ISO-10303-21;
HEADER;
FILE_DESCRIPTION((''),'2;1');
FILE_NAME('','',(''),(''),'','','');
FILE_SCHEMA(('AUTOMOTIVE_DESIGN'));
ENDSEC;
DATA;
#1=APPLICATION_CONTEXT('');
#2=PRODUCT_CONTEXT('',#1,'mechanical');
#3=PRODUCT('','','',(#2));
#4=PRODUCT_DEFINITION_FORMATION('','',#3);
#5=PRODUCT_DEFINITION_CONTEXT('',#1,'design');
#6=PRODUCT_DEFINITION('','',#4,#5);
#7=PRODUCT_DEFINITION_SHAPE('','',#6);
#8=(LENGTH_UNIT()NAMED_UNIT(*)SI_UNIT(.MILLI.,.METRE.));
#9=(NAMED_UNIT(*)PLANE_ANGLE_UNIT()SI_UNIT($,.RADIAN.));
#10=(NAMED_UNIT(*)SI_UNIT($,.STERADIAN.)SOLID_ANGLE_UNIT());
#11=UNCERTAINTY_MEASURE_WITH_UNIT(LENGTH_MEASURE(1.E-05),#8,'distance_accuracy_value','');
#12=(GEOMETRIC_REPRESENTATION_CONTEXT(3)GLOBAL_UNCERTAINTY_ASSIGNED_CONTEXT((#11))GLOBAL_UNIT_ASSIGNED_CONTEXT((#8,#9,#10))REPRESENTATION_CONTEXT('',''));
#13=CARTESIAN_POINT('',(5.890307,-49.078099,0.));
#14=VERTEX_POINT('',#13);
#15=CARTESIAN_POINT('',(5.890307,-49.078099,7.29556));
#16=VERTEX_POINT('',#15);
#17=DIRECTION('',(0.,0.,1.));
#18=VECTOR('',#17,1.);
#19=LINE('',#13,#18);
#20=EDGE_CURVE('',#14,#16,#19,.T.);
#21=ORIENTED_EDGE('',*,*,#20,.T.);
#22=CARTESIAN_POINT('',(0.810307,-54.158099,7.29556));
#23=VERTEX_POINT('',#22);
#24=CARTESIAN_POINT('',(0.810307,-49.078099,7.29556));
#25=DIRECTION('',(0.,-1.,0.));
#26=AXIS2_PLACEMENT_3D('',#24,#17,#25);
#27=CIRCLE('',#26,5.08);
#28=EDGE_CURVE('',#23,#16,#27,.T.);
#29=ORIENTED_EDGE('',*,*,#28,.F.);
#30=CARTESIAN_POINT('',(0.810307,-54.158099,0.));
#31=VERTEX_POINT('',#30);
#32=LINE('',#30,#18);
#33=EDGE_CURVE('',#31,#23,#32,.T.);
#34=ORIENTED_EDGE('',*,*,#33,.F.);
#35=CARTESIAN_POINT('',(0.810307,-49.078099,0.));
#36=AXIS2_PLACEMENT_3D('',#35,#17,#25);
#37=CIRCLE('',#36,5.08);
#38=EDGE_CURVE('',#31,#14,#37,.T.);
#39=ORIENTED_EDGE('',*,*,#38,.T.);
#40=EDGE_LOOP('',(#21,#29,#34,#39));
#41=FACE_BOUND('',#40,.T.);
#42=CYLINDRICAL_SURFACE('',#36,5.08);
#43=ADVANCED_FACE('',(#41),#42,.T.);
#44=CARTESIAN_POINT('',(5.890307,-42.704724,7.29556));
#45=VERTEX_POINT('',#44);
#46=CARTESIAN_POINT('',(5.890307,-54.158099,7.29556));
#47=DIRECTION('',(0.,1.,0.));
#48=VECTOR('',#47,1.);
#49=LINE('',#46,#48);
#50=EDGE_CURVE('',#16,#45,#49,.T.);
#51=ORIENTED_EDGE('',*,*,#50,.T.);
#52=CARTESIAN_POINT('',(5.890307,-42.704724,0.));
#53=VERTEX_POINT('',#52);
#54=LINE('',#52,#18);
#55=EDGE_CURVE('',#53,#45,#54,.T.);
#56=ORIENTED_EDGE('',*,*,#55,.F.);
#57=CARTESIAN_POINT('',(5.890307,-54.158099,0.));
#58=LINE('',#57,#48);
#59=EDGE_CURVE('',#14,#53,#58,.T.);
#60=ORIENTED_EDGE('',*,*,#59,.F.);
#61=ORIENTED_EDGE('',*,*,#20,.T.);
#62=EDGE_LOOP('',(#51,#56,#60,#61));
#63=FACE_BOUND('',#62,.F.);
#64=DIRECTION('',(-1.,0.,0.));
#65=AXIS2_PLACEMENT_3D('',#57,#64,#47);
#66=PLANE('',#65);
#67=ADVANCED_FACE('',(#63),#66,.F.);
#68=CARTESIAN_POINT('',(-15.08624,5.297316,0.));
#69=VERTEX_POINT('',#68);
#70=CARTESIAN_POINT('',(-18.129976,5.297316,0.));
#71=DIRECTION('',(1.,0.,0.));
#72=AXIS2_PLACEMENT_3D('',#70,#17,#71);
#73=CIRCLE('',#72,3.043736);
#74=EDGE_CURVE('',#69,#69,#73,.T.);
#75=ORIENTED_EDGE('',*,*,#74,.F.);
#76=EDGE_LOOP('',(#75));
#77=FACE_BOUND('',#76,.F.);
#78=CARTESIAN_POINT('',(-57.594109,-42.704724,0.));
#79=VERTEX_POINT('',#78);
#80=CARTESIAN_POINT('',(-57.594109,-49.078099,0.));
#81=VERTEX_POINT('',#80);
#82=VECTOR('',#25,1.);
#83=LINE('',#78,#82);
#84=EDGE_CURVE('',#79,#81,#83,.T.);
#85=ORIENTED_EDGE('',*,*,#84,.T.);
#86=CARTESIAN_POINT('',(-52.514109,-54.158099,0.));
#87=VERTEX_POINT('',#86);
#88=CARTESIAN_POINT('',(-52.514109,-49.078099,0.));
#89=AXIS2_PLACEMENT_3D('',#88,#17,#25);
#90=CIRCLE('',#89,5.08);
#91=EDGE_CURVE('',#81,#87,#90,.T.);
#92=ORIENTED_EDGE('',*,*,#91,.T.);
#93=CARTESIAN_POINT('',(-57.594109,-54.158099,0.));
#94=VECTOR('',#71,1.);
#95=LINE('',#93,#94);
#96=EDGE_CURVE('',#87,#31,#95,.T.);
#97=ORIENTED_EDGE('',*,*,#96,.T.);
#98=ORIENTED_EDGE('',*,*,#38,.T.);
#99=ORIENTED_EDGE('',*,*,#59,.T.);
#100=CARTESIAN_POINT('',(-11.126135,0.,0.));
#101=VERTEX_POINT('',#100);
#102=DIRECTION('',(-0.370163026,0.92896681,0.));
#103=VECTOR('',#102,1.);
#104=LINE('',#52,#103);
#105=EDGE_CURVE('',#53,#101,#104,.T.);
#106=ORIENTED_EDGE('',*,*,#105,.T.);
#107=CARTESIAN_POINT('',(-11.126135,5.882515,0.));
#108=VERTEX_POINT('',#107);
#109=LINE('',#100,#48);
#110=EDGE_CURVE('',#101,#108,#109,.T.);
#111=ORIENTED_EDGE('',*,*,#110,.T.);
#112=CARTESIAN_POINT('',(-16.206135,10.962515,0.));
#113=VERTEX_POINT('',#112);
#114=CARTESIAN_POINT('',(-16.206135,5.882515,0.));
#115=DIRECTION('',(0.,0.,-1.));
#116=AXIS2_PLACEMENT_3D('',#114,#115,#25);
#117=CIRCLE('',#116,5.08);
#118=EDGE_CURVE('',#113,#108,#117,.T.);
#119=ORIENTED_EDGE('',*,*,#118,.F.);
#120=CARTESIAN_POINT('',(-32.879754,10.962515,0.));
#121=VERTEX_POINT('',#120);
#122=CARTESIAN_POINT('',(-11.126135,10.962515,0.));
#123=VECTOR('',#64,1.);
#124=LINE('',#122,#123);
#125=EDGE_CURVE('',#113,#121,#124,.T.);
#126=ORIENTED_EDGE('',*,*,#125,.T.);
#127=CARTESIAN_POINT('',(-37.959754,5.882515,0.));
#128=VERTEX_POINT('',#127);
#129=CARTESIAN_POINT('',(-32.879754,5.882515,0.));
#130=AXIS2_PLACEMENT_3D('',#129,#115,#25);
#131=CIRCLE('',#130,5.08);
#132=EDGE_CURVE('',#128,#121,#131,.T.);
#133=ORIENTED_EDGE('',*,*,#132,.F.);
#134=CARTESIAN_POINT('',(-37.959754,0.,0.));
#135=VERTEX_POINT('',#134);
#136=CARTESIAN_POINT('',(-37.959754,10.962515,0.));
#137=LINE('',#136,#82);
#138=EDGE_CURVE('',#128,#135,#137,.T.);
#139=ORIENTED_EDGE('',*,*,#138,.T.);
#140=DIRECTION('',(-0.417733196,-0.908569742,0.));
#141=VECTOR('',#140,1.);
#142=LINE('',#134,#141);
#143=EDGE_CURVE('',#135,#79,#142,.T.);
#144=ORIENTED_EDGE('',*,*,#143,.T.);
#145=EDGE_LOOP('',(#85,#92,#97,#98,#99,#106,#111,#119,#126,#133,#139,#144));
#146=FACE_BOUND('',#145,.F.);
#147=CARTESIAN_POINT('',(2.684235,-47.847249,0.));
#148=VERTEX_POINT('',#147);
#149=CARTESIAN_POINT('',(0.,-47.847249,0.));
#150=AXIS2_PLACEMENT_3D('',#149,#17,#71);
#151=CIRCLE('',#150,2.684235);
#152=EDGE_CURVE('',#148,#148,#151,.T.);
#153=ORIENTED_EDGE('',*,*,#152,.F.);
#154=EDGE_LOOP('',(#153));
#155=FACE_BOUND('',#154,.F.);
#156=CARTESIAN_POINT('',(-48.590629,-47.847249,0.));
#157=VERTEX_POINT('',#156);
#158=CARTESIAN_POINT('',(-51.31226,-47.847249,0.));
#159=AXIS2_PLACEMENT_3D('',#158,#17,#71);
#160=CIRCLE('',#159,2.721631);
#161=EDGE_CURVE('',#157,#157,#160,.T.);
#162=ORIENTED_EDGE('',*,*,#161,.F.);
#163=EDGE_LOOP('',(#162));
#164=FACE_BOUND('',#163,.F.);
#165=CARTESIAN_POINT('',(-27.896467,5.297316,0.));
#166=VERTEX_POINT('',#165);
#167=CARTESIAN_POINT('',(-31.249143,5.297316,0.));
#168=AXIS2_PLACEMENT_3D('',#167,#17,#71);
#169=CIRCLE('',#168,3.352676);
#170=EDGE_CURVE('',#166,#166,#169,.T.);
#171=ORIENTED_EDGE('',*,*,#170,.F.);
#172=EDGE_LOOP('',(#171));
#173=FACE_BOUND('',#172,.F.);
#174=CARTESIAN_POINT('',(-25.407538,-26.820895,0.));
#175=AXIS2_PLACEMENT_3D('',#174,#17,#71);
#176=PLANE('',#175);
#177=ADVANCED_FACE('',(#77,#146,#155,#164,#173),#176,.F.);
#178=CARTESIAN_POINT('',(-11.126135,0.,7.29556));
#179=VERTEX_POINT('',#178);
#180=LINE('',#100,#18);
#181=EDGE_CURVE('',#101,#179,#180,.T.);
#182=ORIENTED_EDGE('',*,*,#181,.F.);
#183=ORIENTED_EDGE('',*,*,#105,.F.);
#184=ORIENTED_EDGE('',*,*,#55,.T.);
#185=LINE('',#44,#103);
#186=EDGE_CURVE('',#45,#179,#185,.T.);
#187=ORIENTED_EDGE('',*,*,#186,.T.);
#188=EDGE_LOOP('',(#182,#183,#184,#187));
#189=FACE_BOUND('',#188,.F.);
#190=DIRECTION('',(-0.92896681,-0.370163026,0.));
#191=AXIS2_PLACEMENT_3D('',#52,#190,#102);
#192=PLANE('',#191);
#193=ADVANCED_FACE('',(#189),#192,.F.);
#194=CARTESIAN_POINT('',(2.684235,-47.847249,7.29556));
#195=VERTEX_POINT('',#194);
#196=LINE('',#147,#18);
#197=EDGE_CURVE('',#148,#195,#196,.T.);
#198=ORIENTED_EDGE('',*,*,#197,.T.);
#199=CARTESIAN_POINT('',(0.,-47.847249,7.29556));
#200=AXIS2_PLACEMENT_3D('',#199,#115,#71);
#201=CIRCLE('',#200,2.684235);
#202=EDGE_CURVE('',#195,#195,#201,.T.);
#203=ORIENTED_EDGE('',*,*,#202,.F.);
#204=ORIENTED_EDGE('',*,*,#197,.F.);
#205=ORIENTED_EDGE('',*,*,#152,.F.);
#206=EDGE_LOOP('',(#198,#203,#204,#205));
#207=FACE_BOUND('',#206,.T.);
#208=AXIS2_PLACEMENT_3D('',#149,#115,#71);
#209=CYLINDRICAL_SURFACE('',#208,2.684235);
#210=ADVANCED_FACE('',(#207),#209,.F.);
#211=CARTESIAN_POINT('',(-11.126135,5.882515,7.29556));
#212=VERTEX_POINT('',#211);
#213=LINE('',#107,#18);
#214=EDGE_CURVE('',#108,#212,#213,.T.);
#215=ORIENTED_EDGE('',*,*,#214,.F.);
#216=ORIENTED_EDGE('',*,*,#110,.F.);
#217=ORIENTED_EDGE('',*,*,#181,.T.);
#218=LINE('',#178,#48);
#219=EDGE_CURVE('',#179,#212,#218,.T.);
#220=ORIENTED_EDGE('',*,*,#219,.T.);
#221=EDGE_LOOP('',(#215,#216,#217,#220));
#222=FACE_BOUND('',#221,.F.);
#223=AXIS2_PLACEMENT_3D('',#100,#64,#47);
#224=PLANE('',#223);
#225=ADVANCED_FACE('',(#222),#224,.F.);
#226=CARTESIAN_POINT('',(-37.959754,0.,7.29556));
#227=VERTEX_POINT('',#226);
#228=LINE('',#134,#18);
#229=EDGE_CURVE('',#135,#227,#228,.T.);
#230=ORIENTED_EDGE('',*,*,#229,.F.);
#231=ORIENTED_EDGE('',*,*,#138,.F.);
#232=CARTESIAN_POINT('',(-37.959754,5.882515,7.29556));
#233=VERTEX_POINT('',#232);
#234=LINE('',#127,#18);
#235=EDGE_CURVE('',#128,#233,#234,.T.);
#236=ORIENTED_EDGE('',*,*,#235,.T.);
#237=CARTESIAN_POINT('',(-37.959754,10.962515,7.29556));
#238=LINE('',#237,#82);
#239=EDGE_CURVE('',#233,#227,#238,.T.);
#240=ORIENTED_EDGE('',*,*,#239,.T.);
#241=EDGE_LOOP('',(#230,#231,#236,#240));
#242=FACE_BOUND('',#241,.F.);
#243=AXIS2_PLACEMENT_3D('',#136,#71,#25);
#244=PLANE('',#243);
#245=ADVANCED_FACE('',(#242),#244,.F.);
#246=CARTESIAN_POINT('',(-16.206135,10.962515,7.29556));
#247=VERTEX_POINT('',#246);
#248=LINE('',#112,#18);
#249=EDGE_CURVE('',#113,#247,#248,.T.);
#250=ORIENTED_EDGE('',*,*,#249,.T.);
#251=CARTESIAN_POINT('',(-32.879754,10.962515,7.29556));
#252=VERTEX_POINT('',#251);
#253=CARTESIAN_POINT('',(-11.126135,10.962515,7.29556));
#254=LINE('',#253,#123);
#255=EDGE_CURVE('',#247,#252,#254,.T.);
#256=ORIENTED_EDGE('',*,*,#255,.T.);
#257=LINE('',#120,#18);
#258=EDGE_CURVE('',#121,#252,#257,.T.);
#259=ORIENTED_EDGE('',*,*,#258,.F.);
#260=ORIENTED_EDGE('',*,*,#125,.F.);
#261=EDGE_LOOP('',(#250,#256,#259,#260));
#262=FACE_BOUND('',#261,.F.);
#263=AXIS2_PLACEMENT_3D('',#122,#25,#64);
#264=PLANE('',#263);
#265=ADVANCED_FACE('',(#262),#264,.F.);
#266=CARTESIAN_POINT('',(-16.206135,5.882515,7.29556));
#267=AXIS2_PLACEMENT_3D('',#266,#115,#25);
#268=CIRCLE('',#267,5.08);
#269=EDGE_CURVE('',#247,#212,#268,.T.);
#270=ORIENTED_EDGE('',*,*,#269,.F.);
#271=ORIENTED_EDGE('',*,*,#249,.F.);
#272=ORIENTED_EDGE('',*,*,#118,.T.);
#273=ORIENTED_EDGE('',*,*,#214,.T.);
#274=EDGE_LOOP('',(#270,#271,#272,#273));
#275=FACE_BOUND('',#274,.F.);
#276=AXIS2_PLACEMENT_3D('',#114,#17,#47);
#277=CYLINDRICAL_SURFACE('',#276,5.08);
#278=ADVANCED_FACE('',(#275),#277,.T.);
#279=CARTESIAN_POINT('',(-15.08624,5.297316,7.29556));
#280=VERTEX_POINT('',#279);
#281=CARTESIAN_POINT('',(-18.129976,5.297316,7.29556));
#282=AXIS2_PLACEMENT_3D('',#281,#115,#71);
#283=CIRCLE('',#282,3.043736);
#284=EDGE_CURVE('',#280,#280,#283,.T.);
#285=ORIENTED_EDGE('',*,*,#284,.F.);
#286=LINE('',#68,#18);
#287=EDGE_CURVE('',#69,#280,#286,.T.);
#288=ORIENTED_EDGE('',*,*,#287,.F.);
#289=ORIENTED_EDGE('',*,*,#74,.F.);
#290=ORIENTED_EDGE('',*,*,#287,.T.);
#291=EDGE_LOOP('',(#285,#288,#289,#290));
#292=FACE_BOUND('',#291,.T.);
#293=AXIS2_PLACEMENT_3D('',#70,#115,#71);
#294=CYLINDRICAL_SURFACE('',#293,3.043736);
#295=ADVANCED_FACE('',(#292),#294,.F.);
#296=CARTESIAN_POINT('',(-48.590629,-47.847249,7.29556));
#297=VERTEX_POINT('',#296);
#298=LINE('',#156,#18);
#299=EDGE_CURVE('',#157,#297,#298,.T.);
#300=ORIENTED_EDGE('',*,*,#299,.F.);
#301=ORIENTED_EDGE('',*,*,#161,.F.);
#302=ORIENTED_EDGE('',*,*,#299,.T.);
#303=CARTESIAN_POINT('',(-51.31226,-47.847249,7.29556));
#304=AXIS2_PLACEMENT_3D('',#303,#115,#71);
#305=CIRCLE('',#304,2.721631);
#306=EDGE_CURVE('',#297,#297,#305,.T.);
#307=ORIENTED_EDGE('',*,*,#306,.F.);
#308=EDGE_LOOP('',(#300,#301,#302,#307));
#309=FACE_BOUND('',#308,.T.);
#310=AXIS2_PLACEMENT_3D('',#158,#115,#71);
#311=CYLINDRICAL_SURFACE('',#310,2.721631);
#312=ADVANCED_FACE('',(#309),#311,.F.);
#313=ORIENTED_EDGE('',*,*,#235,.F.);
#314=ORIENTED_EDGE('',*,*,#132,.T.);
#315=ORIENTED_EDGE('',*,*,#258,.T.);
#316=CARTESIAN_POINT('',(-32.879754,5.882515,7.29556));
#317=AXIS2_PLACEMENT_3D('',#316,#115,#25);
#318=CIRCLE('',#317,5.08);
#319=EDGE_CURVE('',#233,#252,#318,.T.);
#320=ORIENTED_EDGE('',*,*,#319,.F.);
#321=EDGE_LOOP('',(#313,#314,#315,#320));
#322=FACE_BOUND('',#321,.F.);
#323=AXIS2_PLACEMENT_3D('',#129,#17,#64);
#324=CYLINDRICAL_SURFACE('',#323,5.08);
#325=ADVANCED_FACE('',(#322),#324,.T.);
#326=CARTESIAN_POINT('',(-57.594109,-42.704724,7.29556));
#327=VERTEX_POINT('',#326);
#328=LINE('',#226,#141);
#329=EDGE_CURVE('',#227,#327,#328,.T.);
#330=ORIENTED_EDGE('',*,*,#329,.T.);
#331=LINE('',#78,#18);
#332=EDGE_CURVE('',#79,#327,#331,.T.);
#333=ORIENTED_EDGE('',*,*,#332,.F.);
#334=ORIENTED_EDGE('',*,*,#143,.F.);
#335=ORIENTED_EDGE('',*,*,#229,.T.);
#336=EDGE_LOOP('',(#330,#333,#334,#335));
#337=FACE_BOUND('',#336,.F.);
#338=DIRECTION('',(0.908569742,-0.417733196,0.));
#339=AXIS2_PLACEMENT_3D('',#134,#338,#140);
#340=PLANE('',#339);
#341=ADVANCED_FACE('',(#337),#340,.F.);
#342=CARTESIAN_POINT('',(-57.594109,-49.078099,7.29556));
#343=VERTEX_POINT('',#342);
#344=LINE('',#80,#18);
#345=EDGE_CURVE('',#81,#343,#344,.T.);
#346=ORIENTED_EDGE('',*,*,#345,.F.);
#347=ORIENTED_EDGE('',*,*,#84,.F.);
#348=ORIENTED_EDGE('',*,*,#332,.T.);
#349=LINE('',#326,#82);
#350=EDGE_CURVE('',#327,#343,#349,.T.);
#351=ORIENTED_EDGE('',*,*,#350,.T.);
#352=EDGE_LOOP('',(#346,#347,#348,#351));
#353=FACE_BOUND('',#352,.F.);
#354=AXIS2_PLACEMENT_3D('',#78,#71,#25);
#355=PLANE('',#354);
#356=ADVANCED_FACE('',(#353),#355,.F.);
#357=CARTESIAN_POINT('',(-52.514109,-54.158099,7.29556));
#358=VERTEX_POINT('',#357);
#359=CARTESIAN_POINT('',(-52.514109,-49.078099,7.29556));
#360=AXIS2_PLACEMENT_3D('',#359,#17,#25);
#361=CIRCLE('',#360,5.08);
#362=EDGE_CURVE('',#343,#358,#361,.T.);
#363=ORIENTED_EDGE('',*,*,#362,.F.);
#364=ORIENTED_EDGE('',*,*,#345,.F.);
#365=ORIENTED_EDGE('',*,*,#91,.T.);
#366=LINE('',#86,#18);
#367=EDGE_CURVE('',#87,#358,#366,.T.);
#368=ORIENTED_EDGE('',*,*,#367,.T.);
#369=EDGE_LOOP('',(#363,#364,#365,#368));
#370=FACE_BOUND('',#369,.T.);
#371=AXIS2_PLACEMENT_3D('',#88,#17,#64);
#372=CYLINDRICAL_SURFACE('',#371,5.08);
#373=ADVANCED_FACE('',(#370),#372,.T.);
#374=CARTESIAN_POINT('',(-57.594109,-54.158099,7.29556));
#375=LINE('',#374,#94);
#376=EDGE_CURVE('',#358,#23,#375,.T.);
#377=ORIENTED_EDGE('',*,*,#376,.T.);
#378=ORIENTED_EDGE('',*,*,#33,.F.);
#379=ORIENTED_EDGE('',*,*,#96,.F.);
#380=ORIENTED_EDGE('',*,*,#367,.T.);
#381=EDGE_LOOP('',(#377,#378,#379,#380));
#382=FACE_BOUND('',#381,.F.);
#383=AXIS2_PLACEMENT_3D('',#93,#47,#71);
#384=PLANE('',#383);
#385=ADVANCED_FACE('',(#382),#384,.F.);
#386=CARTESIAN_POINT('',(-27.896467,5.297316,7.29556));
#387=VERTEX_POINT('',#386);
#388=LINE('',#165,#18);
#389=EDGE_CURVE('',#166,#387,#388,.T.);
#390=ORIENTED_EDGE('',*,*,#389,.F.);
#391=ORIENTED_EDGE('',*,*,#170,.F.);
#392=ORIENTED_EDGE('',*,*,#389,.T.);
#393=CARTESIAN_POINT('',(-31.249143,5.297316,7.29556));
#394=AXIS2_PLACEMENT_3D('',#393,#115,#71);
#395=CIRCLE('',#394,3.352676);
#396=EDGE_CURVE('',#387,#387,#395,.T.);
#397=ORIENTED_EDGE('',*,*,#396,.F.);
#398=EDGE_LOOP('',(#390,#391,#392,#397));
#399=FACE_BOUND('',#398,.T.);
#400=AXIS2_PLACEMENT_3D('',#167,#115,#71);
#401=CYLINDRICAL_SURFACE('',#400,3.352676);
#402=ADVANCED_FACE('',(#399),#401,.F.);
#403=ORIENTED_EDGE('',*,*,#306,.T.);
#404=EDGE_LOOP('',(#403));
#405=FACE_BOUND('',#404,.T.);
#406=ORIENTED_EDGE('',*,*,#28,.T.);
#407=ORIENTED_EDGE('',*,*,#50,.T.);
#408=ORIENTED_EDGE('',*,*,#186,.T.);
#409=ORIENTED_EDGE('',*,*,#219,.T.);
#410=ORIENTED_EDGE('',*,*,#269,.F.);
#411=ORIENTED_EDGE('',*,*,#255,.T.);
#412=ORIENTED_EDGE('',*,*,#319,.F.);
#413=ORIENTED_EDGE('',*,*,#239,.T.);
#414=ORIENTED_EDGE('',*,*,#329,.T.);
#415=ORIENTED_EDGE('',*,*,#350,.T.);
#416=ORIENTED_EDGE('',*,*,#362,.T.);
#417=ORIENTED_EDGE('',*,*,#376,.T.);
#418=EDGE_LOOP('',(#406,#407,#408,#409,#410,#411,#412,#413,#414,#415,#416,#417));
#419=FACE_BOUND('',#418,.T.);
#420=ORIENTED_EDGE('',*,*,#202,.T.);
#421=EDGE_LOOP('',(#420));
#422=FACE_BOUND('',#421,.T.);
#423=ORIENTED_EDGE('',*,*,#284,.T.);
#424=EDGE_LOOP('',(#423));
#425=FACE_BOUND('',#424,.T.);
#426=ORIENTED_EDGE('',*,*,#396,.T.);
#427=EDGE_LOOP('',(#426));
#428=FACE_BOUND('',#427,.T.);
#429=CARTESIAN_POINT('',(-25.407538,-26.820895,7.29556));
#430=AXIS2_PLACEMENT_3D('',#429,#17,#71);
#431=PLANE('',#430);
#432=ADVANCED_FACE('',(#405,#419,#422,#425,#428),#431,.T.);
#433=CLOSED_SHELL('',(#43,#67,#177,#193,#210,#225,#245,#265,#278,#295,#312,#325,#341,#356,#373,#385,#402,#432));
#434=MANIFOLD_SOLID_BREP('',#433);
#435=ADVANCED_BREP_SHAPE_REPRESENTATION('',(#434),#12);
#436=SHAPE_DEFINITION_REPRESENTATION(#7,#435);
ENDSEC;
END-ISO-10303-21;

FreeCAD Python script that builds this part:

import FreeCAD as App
import Part
import Sketcher
from FreeCAD import Vector
Q = App.Units.Quantity


def edges_at(feature, points):
    """Names of the edges that pass closest to the given points."""
    edges = feature.Shape.Edges
    near = lambda p: min(range(len(edges)), key=lambda i: edges[i].distToShape(Part.Vertex(*p))[0])
    return sorted({f"Edge{near(p) + 1}" for p in points})


def add_polygon(sketch, points):
    """Adds a closed chain of lines whose ends are joined by coincident constraints."""
    first, n = sketch.GeometryCount, len(points)
    for a, b in zip(points, points[1:] + points[:1]):
        sketch.addGeometry(Part.LineSegment(App.Vector(*a, 0), App.Vector(*b, 0)), False)
    for i in range(n):
        sketch.addConstraint(Sketcher.Constraint("Coincident", first + i, 2, first + (i + 1) % n, 1))

doc = App.newDocument("Part")
body = doc.addObject("PartDesign::Body", "Body")

# Sketch on XY plane
sketch1 = doc.addObject("Sketcher::SketchObject", "Sketch")
body.addObject(sketch1)
sketch1.AttachmentSupport = (doc.XY_Plane, [""])
sketch1.MapMode = "FlatFace"
add_polygon(sketch1, [(-57.594109, -42.704724), (-57.594109, -54.158099), (5.890307, -54.158099), (5.890307, -42.704724), (-11.126135, 0), (-11.126135, 10.962515), (-37.959754, 10.962515), (-37.959754, 0)])  # lines 0-7
sketch1.addConstraint([
    Sketcher.Constraint("Vertical", 0),
    Sketcher.Constraint("Horizontal", 1),
    Sketcher.Constraint("Vertical", 2),
    Sketcher.Constraint("Vertical", 4),
    Sketcher.Constraint("Horizontal", 5),
    Sketcher.Constraint("Vertical", 6),
    Sketcher.Constraint("PointOnObject", 3, 2, -1),
    Sketcher.Constraint("PointOnObject", 6, 2, -1),
    Sketcher.Constraint("Horizontal", 2, 2, 7, 2),
    Sketcher.Constraint("DistanceX", 5, 2, 5, 1, 26.833619),
    Sketcher.Constraint("DistanceY", 0, 2, -1, 1, 54.158099),
    Sketcher.Constraint("Distance", 3, 45.970129),
    Sketcher.Constraint("Distance", 7, 47.002142),
    Sketcher.Constraint("DistanceX", 1, 1, 1, 2, 63.484416),
    Sketcher.Constraint("DistanceY", 4, 1, 4, 2, 10.962515),
    Sketcher.Constraint("DistanceX", 0, 2, -1, 1, 57.594109),
])
pad1 = doc.addObject("PartDesign::Pad", "Pad")
body.addObject(pad1)
pad1.Profile = sketch1
pad1.Length = 7.29556

# Sketch on XY plane
sketch2 = doc.addObject("Sketcher::SketchObject", "Sketch001")
body.addObject(sketch2)
sketch2.AttachmentSupport = (doc.XY_Plane, [""])
sketch2.MapMode = "FlatFace"
sketch2.addGeometry([
    Part.Circle(Vector(-31.249143, 5.297316, 0), Vector(0, 0, 1), 3.352676),
    Part.Circle(Vector(-18.129976, 5.297316, 0), Vector(0, 0, 1), 3.043736),
], False)
sketch2.addConstraint([
    Sketcher.Constraint("Horizontal", 0, 3, 1, 3),
    Sketcher.Constraint("Diameter", 0, 6.705352),
    Sketcher.Constraint("Diameter", 1, 6.087472),
    Sketcher.Constraint("DistanceX", 0, 3, -1, 1, 31.249143),
    Sketcher.Constraint("DistanceY", -1, 1, 0, 3, 5.297316),
    Sketcher.Constraint("DistanceX", 1, 3, -1, 1, 18.129976),
])
pocket1 = doc.addObject("PartDesign::Pocket", "Pocket")
body.addObject(pocket1)
pocket1.Profile = sketch2
pocket1.Length = Q("1 in")
pocket1.Reversed = True

# Sketch on XY plane
sketch3 = doc.addObject("Sketcher::SketchObject", "Sketch002")
body.addObject(sketch3)
sketch3.AttachmentSupport = (doc.XY_Plane, [""])
sketch3.MapMode = "FlatFace"
sketch3.addGeometry([
    Part.Circle(Vector(-51.31226, -47.847249, 0), Vector(0, 0, 1), 2.721631),
    Part.Circle(Vector(0, -47.847249, 0), Vector(0, 0, 1), 2.684235),
], False)
sketch3.addConstraint([
    Sketcher.Constraint("PointOnObject", 1, 3, -2),
    Sketcher.Constraint("Horizontal", 0, 3, 1, 3),
    Sketcher.Constraint("Diameter", 0, 5.443262),
    Sketcher.Constraint("Diameter", 1, 5.36847),
    Sketcher.Constraint("DistanceX", 0, 3, -1, 1, 51.31226),
    Sketcher.Constraint("DistanceY", 0, 3, -1, 1, 47.847249),
])
pocket2 = doc.addObject("PartDesign::Pocket", "Pocket001")
body.addObject(pocket2)
pocket2.Profile = sketch3
pocket2.Length = Q("1 in")
pocket2.Reversed = True
doc.recompute()

fillet = doc.addObject("PartDesign::Fillet", "Fillet")
body.addObject(fillet)
fillet.Base = (pocket2, edges_at(pocket2, [(-57.594, -54.158, 3.648), (5.89, -54.158, 3.648)]))
fillet.Radius = Q("0.2 in")
doc.recompute()

fillet2 = doc.addObject("PartDesign::Fillet", "Fillet001")
body.addObject(fillet2)
fillet2.Base = (fillet, edges_at(fillet, [(-37.96, 10.963, 3.648), (-11.126, 10.963, 3.648)]))
fillet2.Radius = Q("0.2 in")

doc.recompute()
